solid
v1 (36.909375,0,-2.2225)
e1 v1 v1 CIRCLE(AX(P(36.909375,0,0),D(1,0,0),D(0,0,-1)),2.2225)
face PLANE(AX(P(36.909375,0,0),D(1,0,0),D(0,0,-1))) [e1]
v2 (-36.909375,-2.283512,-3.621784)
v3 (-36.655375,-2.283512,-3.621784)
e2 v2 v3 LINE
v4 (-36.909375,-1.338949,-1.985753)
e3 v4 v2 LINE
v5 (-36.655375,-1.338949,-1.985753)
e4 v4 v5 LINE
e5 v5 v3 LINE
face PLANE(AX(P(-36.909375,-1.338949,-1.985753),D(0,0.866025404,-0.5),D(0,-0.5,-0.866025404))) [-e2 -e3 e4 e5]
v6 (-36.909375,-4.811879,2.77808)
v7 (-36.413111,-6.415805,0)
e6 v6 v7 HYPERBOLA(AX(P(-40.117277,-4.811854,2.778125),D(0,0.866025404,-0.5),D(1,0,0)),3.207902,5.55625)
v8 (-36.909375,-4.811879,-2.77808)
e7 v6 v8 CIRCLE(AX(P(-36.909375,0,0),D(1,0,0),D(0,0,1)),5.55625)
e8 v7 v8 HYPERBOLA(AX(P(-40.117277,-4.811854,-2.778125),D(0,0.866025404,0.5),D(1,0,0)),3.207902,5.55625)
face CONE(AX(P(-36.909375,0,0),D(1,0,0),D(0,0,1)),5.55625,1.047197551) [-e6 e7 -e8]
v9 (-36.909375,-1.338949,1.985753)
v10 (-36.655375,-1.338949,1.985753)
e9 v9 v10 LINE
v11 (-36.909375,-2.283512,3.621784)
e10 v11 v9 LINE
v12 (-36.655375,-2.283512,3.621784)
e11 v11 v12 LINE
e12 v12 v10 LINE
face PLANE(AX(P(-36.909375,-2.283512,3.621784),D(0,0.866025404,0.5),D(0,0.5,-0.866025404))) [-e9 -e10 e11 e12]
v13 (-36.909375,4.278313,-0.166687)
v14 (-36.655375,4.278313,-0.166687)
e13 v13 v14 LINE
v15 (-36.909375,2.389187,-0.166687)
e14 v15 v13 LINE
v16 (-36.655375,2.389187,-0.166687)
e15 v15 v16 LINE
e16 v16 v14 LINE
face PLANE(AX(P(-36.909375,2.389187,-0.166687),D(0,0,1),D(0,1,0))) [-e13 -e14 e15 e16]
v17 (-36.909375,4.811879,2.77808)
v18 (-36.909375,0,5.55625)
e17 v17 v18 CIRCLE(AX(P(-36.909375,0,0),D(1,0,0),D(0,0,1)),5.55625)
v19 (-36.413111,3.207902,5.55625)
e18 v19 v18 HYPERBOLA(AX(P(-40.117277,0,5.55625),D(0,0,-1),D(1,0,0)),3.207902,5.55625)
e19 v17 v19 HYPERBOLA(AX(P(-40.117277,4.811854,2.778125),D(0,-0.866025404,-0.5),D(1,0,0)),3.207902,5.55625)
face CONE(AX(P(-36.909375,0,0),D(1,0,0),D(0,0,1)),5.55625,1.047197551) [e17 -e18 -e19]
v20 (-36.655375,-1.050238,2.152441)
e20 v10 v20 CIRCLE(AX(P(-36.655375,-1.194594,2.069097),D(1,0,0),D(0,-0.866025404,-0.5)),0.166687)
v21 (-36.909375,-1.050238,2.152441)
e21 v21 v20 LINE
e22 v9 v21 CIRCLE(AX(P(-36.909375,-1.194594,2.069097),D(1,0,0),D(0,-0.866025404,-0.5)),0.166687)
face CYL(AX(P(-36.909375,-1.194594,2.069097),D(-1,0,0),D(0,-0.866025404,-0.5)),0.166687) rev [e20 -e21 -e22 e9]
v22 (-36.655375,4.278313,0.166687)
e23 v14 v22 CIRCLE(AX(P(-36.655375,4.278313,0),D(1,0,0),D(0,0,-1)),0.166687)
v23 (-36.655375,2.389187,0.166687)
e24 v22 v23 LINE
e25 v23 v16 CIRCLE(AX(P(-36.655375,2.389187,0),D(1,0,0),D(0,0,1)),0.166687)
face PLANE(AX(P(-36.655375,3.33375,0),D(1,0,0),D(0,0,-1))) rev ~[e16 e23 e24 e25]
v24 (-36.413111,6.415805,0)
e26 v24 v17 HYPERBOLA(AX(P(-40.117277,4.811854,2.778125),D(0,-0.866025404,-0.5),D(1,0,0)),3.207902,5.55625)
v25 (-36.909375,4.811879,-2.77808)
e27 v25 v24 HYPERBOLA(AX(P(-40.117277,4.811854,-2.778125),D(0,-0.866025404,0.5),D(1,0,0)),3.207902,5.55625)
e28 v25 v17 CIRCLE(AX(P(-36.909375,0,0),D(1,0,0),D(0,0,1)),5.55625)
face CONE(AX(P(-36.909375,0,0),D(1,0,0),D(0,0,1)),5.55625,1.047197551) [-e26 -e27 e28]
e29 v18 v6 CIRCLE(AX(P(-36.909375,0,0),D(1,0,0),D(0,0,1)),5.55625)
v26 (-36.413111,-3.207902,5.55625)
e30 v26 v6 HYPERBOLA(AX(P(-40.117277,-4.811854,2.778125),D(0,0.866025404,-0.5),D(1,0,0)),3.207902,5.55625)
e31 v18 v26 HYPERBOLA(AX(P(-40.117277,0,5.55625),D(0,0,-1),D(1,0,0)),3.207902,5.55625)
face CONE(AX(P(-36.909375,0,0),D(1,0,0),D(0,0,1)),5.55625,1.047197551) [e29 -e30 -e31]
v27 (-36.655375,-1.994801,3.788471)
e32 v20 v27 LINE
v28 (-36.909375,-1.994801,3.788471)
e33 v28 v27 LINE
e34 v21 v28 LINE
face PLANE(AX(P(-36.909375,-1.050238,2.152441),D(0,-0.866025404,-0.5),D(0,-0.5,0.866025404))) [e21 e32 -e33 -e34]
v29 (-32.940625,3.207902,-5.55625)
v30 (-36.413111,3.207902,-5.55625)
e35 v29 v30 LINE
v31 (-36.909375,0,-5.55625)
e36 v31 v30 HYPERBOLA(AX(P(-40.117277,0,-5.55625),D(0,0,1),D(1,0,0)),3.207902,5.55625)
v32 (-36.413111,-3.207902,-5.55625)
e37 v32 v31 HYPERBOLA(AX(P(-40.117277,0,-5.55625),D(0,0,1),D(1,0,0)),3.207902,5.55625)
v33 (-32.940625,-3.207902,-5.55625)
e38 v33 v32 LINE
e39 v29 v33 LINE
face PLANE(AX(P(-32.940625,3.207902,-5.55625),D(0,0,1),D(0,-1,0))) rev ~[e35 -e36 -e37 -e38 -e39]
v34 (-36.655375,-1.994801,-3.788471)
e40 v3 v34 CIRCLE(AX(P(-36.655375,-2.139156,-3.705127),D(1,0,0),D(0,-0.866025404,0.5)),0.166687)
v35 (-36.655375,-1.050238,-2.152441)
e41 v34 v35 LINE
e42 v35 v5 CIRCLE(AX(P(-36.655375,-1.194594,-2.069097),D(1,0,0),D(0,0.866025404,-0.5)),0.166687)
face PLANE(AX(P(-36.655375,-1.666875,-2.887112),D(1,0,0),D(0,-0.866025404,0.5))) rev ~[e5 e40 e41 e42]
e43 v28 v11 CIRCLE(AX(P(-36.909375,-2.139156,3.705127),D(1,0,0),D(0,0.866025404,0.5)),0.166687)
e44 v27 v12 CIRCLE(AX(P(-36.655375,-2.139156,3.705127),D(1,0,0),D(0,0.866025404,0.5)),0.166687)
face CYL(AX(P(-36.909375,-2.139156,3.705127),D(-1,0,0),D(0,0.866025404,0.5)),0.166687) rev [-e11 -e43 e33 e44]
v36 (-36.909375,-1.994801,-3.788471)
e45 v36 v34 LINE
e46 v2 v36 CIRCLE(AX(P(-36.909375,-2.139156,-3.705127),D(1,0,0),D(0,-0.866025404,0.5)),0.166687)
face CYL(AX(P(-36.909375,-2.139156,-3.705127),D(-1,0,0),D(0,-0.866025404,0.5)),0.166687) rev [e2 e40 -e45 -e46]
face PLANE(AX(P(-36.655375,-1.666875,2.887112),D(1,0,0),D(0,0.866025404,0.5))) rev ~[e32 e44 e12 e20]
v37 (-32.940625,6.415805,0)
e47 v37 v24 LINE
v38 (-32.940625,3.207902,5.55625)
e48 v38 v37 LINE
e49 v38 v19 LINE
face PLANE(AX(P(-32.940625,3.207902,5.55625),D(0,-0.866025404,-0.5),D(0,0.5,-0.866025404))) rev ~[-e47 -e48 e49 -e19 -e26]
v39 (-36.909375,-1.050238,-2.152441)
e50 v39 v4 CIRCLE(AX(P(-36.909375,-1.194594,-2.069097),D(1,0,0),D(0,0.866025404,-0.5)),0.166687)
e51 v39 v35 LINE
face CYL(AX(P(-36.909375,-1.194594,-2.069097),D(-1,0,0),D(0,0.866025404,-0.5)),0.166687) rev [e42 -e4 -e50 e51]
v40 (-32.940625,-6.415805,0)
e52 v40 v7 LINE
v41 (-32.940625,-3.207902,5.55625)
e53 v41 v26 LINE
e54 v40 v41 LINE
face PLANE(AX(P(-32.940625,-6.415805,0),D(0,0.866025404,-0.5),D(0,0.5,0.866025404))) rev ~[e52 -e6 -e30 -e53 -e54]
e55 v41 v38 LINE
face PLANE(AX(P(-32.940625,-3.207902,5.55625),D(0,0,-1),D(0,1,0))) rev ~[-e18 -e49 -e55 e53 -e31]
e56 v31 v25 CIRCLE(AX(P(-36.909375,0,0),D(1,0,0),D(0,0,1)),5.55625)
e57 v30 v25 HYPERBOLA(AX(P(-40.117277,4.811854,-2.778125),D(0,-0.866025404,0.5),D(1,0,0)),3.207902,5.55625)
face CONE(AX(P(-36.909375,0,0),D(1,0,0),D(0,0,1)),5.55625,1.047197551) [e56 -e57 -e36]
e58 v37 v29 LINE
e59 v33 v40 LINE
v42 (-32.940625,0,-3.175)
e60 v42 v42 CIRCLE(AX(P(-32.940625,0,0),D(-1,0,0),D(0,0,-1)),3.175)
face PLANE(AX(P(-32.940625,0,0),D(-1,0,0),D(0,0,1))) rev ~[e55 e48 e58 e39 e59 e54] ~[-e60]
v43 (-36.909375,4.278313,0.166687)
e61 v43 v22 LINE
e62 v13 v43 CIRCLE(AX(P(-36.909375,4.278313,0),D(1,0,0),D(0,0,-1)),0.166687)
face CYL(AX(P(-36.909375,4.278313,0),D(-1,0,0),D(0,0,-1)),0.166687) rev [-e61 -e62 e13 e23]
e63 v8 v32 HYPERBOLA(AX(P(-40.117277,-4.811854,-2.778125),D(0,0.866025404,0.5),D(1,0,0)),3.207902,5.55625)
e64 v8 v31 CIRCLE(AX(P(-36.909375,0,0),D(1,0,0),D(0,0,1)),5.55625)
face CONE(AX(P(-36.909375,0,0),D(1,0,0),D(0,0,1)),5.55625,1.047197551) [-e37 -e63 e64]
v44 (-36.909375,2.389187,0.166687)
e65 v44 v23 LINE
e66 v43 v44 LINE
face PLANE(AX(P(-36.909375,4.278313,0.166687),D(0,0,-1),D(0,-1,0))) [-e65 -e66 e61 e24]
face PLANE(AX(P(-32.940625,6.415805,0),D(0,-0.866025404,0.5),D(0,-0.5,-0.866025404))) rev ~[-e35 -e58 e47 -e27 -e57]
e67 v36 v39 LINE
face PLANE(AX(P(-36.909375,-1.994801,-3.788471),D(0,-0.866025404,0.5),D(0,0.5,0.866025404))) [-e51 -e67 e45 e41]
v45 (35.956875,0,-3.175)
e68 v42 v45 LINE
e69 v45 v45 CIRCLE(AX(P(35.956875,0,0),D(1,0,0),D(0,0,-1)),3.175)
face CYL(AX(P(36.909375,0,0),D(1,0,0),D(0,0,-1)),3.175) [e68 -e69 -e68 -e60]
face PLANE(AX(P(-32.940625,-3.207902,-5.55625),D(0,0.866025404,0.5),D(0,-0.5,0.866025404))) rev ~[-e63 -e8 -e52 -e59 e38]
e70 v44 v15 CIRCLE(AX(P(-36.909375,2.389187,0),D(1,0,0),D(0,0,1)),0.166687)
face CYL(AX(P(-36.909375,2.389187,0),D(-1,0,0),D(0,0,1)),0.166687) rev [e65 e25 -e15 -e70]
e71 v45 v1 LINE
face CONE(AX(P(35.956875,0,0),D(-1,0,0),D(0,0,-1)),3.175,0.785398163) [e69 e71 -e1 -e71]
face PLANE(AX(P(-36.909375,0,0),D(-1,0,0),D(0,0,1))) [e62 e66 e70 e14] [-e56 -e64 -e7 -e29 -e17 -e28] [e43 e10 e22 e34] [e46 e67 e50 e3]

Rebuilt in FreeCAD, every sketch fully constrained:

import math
import FreeCAD as App
import Part
import Sketcher
Q = App.Units.Quantity


def edges_at(feature, points):
    """Names of the edges that pass closest to the given points."""
    edges = feature.Shape.Edges
    near = lambda p: min(range(len(edges)), key=lambda i: edges[i].distToShape(Part.Vertex(*p))[0])
    return sorted({f"Edge{near(p) + 1}" for p in points})

doc = App.newDocument("Part")
body = doc.addObject("PartDesign::Body", "Body")

# Sketch on YZ plane
sketch1 = body.newObject("Sketcher::SketchObject", "Sketch")
sketch1.AttachmentSupport = (doc.getObject("YZ_Plane"), [""])
sketch1.MapMode = "FlatFace"
sketch1.AttachmentOffset = App.Placement(App.Vector(0, 0, 1.453125 * 25.4), App.Rotation())
sketch1.addGeometry(Part.Circle(App.Vector(0, 0, 0), App.Vector(0, 0, 1), 3.2), False)
sketch1.addConstraint([
    Sketcher.Constraint("Coincident", 0, 3, -1, 1),
    Sketcher.Constraint("Diameter", 0, Q("0.25 in")),
])
pad1 = body.newObject("PartDesign::Pad", "Pad")
pad1.Profile = sketch1
pad1.Length = Q("2.75 in")
pad1.Reversed = True
doc.recompute()

chamfer = body.newObject("PartDesign::Chamfer", "Chamfer")
chamfer.Base = (pad1, edges_at(pad1, [(36.909, 0, 3.175)]))
chamfer.Size = Q("0.0375 in")

# Sketch on XY plane
sketch2 = body.newObject("Sketcher::SketchObject", "Sketch001")
sketch2.AttachmentSupport = (doc.getObject("XY_Plane"), [""])
sketch2.MapMode = "FlatFace"
sketch2.addGeometry([
    Part.LineSegment(App.Vector(-32.9, 3.2, 0), App.Vector(-32.9, 0, 0)),
    Part.LineSegment(App.Vector(-32.9, 0, 0), App.Vector(21, 0, 0)),
    Part.LineSegment(App.Vector(21, 0, 0), App.Vector(17.9, 3.2, 0)),
    Part.LineSegment(App.Vector(17.9, 3.2, 0), App.Vector(-32.9, 3.2, 0)),
], False)
sketch2.addConstraint([
    Sketcher.Constraint("Coincident", 0, 2, 1, 1),
    Sketcher.Constraint("Coincident", 1, 2, 2, 1),
    Sketcher.Constraint("Coincident", 2, 2, 3, 1),
    Sketcher.Constraint("Coincident", 3, 2, 0, 1),
    Sketcher.Constraint("Vertical", 0),
    Sketcher.Constraint("Horizontal", 1),
    Sketcher.Constraint("Horizontal", 3),
    Sketcher.Constraint("PointOnObject", 0, 2, -1),
    Sketcher.Constraint("DistanceX", 3, 2, 3, 1, Q("2 in")),
    Sketcher.Constraint("Angle", 2, Q("135 deg")),
    Sketcher.Constraint("DistanceX", 1, 1, 1, 2, Q("2.125 in")),
    Sketcher.Constraint("DistanceX", 0, 2, -1, 1, Q("1.296875 in")),
])
revolution = body.newObject("PartDesign::Revolution", "Revolution")
revolution.Profile = sketch2
revolution.ReferenceAxis = (sketch2, ["H_Axis"])
revolution.Angle = 360

# Sketch on YZ plane
sketch3 = body.newObject("Sketcher::SketchObject", "Sketch002")
sketch3.AttachmentSupport = (doc.getObject("YZ_Plane"), [""])
sketch3.MapMode = "FlatFace"
sketch3.AttachmentOffset = App.Placement(App.Vector(0, 0, -1.296875 * 25.4), App.Rotation())
sketch3.addGeometry([
    Part.LineSegment(App.Vector(3, 6, 0), App.Vector(6, 0, 0)),  # 0
    Part.LineSegment(App.Vector(6, 0, 0), App.Vector(3, -6, 0)),  # 1
    Part.LineSegment(App.Vector(3, -6, 0), App.Vector(-3, -6, 0)),  # 2
    Part.LineSegment(App.Vector(-3, -6, 0), App.Vector(-6, 0, 0)),  # 3
    Part.LineSegment(App.Vector(-6, 0, 0), App.Vector(-3, 6, 0)),  # 4
    Part.LineSegment(App.Vector(-3, 6, 0), App.Vector(3, 6, 0)),  # 5
], False)
sketch3.addConstraint([
    Sketcher.Constraint("Coincident", 0, 2, 1, 1),
    Sketcher.Constraint("Coincident", 1, 2, 2, 1),
    Sketcher.Constraint("Coincident", 2, 2, 3, 1),
    Sketcher.Constraint("Coincident", 3, 2, 4, 1),
    Sketcher.Constraint("Coincident", 4, 2, 5, 1),
    Sketcher.Constraint("Coincident", 5, 2, 0, 1),
    Sketcher.Constraint("Horizontal", 2),
    Sketcher.Constraint("Horizontal", 5),
    Sketcher.Constraint("Symmetric", 0, 2, 3, 2, -1, 1),
    Sketcher.Constraint("Symmetric", 1, 2, 4, 2, -1, 1),
    Sketcher.Constraint("PointOnObject", 0, 2, -1),
    Sketcher.Constraint("Parallel", 0, 3),
    Sketcher.Constraint("Vertical", 2, 2, 4, 2),
    Sketcher.Constraint("Angle", 0, Q("-60 deg")),
    Sketcher.Constraint("DistanceY", 1, 2, -1, 1, Q("0.21875 in")),
    Sketcher.Constraint("DistanceX", 2, 2, 2, 1, Q("6.415805 mm")),
])
pad2 = body.newObject("PartDesign::Pad", "Pad001")
pad2.Profile = sketch3
pad2.Length = Q("0.15625 in")
pad2.Reversed = True

# Sketch on YZ plane
sketch4 = body.newObject("Sketcher::SketchObject", "Sketch003")
sketch4.AttachmentSupport = (doc.getObject("YZ_Plane"), [""])
sketch4.MapMode = "FlatFace"
sketch4.AttachmentOffset = App.Placement(App.Vector(0, 0, -1.453125 * 25.4), App.Rotation())
sketch4.addGeometry([
    Part.LineSegment(App.Vector(145, -144, 0), App.Vector(-145, -144, 0)),  # 0
    Part.LineSegment(App.Vector(-145, -144, 0), App.Vector(-145, 144, 0)),  # 1
    Part.LineSegment(App.Vector(-145, 144, 0), App.Vector(145, 144, 0)),  # 2
    Part.LineSegment(App.Vector(145, 144, 0), App.Vector(145, -144, 0)),  # 3
    Part.Circle(App.Vector(0, 0, 0), App.Vector(0, 0, 1), 6),  # 4
], False)
sketch4.addConstraint([
    Sketcher.Constraint("Coincident", 0, 2, 1, 1),
    Sketcher.Constraint("Coincident", 1, 2, 2, 1),
    Sketcher.Constraint("Coincident", 2, 2, 3, 1),
    Sketcher.Constraint("Coincident", 3, 2, 0, 1),
    Sketcher.Constraint("Horizontal", 0),
    Sketcher.Constraint("Vertical", 1),
    Sketcher.Constraint("Horizontal", 2),
    Sketcher.Constraint("Vertical", 3),
    Sketcher.Constraint("Coincident", 4, 3, -1, 1),
    Sketcher.Constraint("Symmetric", 0, 2, 2, 2, -1, 1),
    Sketcher.Constraint("Diameter", 4, Q("0.4375 in")),
    Sketcher.Constraint("DistanceX", 0, 2, 0, 1, Q("289.16 mm")),
    Sketcher.Constraint("DistanceY", 1, 1, 1, 2, Q("287.44 mm")),
])
pocket1 = body.newObject("PartDesign::Pocket", "Pocket")
pocket1.Profile = sketch4
pocket1.Length = 74.81875
pocket1.Reversed = True
pocket1.TaperAngle = 60

# Sketch on YZ plane
sketch5 = body.newObject("Sketcher::SketchObject", "Sketch004")
sketch5.AttachmentSupport = (doc.getObject("YZ_Plane"), [""])
sketch5.MapMode = "FlatFace"
sketch5.AttachmentOffset = App.Placement(App.Vector(0, 0, -1.453125 * 25.4), App.Rotation())
sketch5.addGeometry([
    Part.LineSegment(App.Vector(2.39, 0.17, 0), App.Vector(4.28, 0.17, 0)),
    Part.ArcOfCircle(Part.Circle(App.Vector(4.28, 0, 0), App.Vector(0, 0, 1), 0.17), math.radians(-90), math.radians(90)),
    Part.LineSegment(App.Vector(4.28, -0.17, 0), App.Vector(2.39, -0.17, 0)),
    Part.ArcOfCircle(Part.Circle(App.Vector(2.39, 0, 0), App.Vector(0, 0, 1), 0.17), math.radians(90), math.radians(270)),
], False)
sketch5.addConstraint([
    Sketcher.Constraint("Tangent", 0, 2, 1, 2),
    Sketcher.Constraint("Tangent", 1, 1, 2, 1),
    Sketcher.Constraint("Tangent", 2, 2, 3, 2),
    Sketcher.Constraint("Tangent", 3, 1, 0, 1),
    Sketcher.Constraint("Horizontal", 0),
    Sketcher.Constraint("Horizontal", 2),
    Sketcher.Constraint("PointOnObject", 1, 3, -1),
    Sketcher.Constraint("Radius", 1, Q("0.166687 mm")),
    Sketcher.Constraint("DistanceX", 0, 1, 0, 2, Q("1.889125 mm")),
    Sketcher.Constraint("DistanceX", -1, 1, 1, 3, Q("4.278313 mm")),
])
pocket2 = body.newObject("PartDesign::Pocket", "Pocket001")
pocket2.Profile = sketch5
pocket2.Length = Q("0.01 in")
pocket2.Reversed = True
doc.recompute()

polarpattern = body.newObject("PartDesign::PolarPattern", "PolarPattern")
polarpattern.Originals = [pocket2]
polarpattern.Axis = (doc.getObject("X_Axis"), [""])
polarpattern.Angle = 360
polarpattern.Occurrences = 3
body.Tip = polarpattern

doc.recompute()
